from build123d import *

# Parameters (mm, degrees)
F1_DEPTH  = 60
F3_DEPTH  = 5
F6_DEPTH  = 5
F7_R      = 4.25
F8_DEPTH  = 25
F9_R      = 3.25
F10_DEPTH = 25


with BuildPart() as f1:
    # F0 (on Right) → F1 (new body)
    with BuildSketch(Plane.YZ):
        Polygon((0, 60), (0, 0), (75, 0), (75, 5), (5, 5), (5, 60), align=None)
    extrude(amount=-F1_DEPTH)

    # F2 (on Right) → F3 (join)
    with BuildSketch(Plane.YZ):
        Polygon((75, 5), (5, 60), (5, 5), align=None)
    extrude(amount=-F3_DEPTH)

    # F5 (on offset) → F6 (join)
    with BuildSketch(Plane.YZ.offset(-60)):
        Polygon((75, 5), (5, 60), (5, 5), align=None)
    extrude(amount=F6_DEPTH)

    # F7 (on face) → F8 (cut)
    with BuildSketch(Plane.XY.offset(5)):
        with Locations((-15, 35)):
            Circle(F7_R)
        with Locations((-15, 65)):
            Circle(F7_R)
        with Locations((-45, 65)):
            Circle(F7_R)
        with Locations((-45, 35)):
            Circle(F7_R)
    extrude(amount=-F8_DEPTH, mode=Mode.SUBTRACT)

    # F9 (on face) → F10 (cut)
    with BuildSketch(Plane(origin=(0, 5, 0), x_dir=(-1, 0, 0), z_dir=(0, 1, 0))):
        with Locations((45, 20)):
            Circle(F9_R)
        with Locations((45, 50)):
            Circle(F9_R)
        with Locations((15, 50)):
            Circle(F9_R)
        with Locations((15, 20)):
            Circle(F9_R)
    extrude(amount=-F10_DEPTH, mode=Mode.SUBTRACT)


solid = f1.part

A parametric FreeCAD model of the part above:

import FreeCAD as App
import Part
import Sketcher
from FreeCAD import Vector
Q = App.Units.Quantity

doc = App.newDocument("Part")
body = doc.addObject("PartDesign::Body", "Body")

# Sketch on YZ plane
sketch1 = body.newObject("Sketcher::SketchObject", "Sketch")
sketch1.AttachmentSupport = (doc.getObject("YZ_Plane"), [""])
sketch1.MapMode = "FlatFace"
sketch1.addGeometry(Part.LineSegment(Vector(0, 60, 0), Vector(0, 0, 0)), False)
sketch1.addGeometry(Part.LineSegment(Vector(0, 0, 0), Vector(75, 0, 0)), False)
sketch1.addGeometry(Part.LineSegment(Vector(75, 0, 0), Vector(75, 5, 0)), False)
sketch1.addGeometry(Part.LineSegment(Vector(75, 5, 0), Vector(5, 5, 0)), False)
sketch1.addGeometry(Part.LineSegment(Vector(5, 5, 0), Vector(5, 60, 0)), False)
sketch1.addGeometry(Part.LineSegment(Vector(5, 60, 0), Vector(0, 60, 0)), False)
sketch1.addConstraint(Sketcher.Constraint("Coincident", 0, 2, 1, 1))
sketch1.addConstraint(Sketcher.Constraint("Coincident", 1, 2, 2, 1))
sketch1.addConstraint(Sketcher.Constraint("Coincident", 2, 2, 3, 1))
sketch1.addConstraint(Sketcher.Constraint("Coincident", 3, 2, 4, 1))
sketch1.addConstraint(Sketcher.Constraint("Coincident", 4, 2, 5, 1))
sketch1.addConstraint(Sketcher.Constraint("Coincident", 5, 2, 0, 1))
sketch1.addConstraint(Sketcher.Constraint("Vertical", 0))
sketch1.addConstraint(Sketcher.Constraint("Horizontal", 1))
sketch1.addConstraint(Sketcher.Constraint("Vertical", 2))
sketch1.addConstraint(Sketcher.Constraint("Horizontal", 3))
sketch1.addConstraint(Sketcher.Constraint("Vertical", 4))
sketch1.addConstraint(Sketcher.Constraint("Horizontal", 5))
sketch1.addConstraint(Sketcher.Constraint("Coincident", 0, 2, -1, 1))
sketch1.addConstraint(Sketcher.Constraint("Equal", 5, 2))
sketch1.addConstraint(Sketcher.Constraint("DistanceX", 1, 1, 1, 2, Q("75 mm")))
sketch1.addConstraint(Sketcher.Constraint("DistanceX", 3, 2, 3, 1, Q("70 mm")))
sketch1.addConstraint(Sketcher.Constraint("DistanceY", 0, 2, 0, 1, Q("60 mm")))
pad1 = body.newObject("PartDesign::Pad", "Pad")
pad1.Profile = sketch1
pad1.Length = 60
pad1.Reversed = True

# Sketch on YZ plane
sketch2 = body.newObject("Sketcher::SketchObject", "Sketch001")
sketch2.AttachmentSupport = (doc.getObject("YZ_Plane"), [""])
sketch2.MapMode = "FlatFace"
sketch2.addGeometry(Part.LineSegment(Vector(75, 5, 0), Vector(5, 60, 0)), False)
sketch2.addGeometry(Part.LineSegment(Vector(5, 60, 0), Vector(5, 5, 0)), False)
sketch2.addGeometry(Part.LineSegment(Vector(5, 5, 0), Vector(75, 5, 0)), False)
sketch2.addConstraint(Sketcher.Constraint("Coincident", 0, 2, 1, 1))
sketch2.addConstraint(Sketcher.Constraint("Coincident", 1, 2, 2, 1))
sketch2.addConstraint(Sketcher.Constraint("Coincident", 2, 2, 0, 1))
sketch2.addConstraint(Sketcher.Constraint("Vertical", 1))
sketch2.addConstraint(Sketcher.Constraint("Horizontal", 2))
sketch2.addConstraint(Sketcher.Constraint("DistanceX", 2, 1, 2, 2, Q("70 mm")))
sketch2.addConstraint(Sketcher.Constraint("DistanceY", 1, 2, 1, 1, Q("55 mm")))
sketch2.addConstraint(Sketcher.Constraint("DistanceX", -1, 1, 0, 2, Q("5 mm")))
sketch2.addConstraint(Sketcher.Constraint("DistanceY", -1, 1, 0, 2, Q("60 mm")))
pad2 = body.newObject("PartDesign::Pad", "Pad001")
pad2.Profile = sketch2
pad2.Length = 5
pad2.Reversed = True

# Sketch on YZ plane
sketch3 = body.newObject("Sketcher::SketchObject", "Sketch002")
sketch3.AttachmentSupport = (doc.getObject("YZ_Plane"), [""])
sketch3.MapMode = "FlatFace"
sketch3.AttachmentOffset = App.Placement(Vector(0, 0, -60), App.Rotation())
sketch3.addGeometry(Part.LineSegment(Vector(75, 5, 0), Vector(5, 60, 0)), False)
sketch3.addGeometry(Part.LineSegment(Vector(5, 60, 0), Vector(5, 5, 0)), False)
sketch3.addGeometry(Part.LineSegment(Vector(5, 5, 0), Vector(75, 5, 0)), False)
sketch3.addConstraint(Sketcher.Constraint("Coincident", 0, 2, 1, 1))
sketch3.addConstraint(Sketcher.Constraint("Coincident", 1, 2, 2, 1))
sketch3.addConstraint(Sketcher.Constraint("Coincident", 2, 2, 0, 1))
sketch3.addConstraint(Sketcher.Constraint("Vertical", 1))
sketch3.addConstraint(Sketcher.Constraint("Horizontal", 2))
sketch3.addConstraint(Sketcher.Constraint("DistanceX", 2, 1, 2, 2, Q("70 mm")))
sketch3.addConstraint(Sketcher.Constraint("DistanceY", 1, 2, 1, 1, Q("55 mm")))
sketch3.addConstraint(Sketcher.Constraint("DistanceX", -1, 1, 0, 2, Q("5 mm")))
sketch3.addConstraint(Sketcher.Constraint("DistanceY", -1, 1, 0, 2, Q("60 mm")))
pad3 = body.newObject("PartDesign::Pad", "Pad002")
pad3.Profile = sketch3
pad3.Length = 5

# Sketch on XY plane
sketch4 = body.newObject("Sketcher::SketchObject", "Sketch003")
sketch4.AttachmentSupport = (doc.getObject("XY_Plane"), [""])
sketch4.MapMode = "FlatFace"
sketch4.AttachmentOffset = App.Placement(Vector(0, 0, 5), App.Rotation())
sketch4.addGeometry(Part.Circle(Vector(-15, 35, 0), Vector(0, 0, 1), 4.25), False)
sketch4.addGeometry(Part.Circle(Vector(-15, 65, 0), Vector(0, 0, 1), 4.25), False)
sketch4.addGeometry(Part.Circle(Vector(-45, 65, 0), Vector(0, 0, 1), 4.25), False)
sketch4.addGeometry(Part.Circle(Vector(-45, 35, 0), Vector(0, 0, 1), 4.25), False)
sketch4.addConstraint(Sketcher.Constraint("Equal", 0, 1))
sketch4.addConstraint(Sketcher.Constraint("Equal", 1, 2))
sketch4.addConstraint(Sketcher.Constraint("Equal", 2, 3))
sketch4.addConstraint(Sketcher.Constraint("Horizontal", 1, 3, 2, 3))
sketch4.addConstraint(Sketcher.Constraint("Horizontal", 0, 3, 3, 3))
sketch4.addConstraint(Sketcher.Constraint("Vertical", 0, 3, 1, 3))
sketch4.addConstraint(Sketcher.Constraint("Vertical", 2, 3, 3, 3))
sketch4.addConstraint(Sketcher.Constraint("Diameter", 0, Q("8.5 mm")))
sketch4.addConstraint(Sketcher.Constraint("DistanceX", 0, 3, -1, 1, Q("15 mm")))
sketch4.addConstraint(Sketcher.Constraint("DistanceY", -1, 1, 0, 3, Q("35 mm")))
sketch4.addConstraint(Sketcher.Constraint("DistanceY", -1, 1, 1, 3, Q("65 mm")))
sketch4.addConstraint(Sketcher.Constraint("DistanceX", 2, 3, -1, 1, Q("45 mm")))
pocket1 = body.newObject("PartDesign::Pocket", "Pocket")
pocket1.Profile = sketch4
pocket1.Length = 25

# Sketch on XZ plane
sketch5 = body.newObject("Sketcher::SketchObject", "Sketch004")
sketch5.AttachmentSupport = (doc.getObject("XZ_Plane"), [""])
sketch5.MapMode = "FlatFace"
sketch5.AttachmentOffset = App.Placement(Vector(0, 0, -5), App.Rotation())
sketch5.addGeometry(Part.Circle(Vector(-45, 20, 0), Vector(0, 0, 1), 3.25), False)
sketch5.addGeometry(Part.Circle(Vector(-45, 50, 0), Vector(0, 0, 1), 3.25), False)
sketch5.addGeometry(Part.Circle(Vector(-15, 50, 0), Vector(0, 0, 1), 3.25), False)
sketch5.addGeometry(Part.Circle(Vector(-15, 20, 0), Vector(0, 0, 1), 3.25), False)
sketch5.addConstraint(Sketcher.Constraint("Equal", 0, 1))
sketch5.addConstraint(Sketcher.Constraint("Equal", 1, 2))
sketch5.addConstraint(Sketcher.Constraint("Equal", 2, 3))
sketch5.addConstraint(Sketcher.Constraint("Horizontal", 1, 3, 2, 3))
sketch5.addConstraint(Sketcher.Constraint("Horizontal", 0, 3, 3, 3))
sketch5.addConstraint(Sketcher.Constraint("Vertical", 0, 3, 1, 3))
sketch5.addConstraint(Sketcher.Constraint("Vertical", 2, 3, 3, 3))
sketch5.addConstraint(Sketcher.Constraint("Diameter", 0, Q("6.5 mm")))
sketch5.addConstraint(Sketcher.Constraint("DistanceX", 0, 3, -1, 1, Q("45 mm")))
sketch5.addConstraint(Sketcher.Constraint("DistanceY", -1, 1, 0, 3, Q("20 mm")))
sketch5.addConstraint(Sketcher.Constraint("DistanceY", -1, 1, 1, 3, Q("50 mm")))
sketch5.addConstraint(Sketcher.Constraint("DistanceX", 2, 3, -1, 1, Q("15 mm")))
pocket2 = body.newObject("PartDesign::Pocket", "Pocket001")
pocket2.Profile = sketch5
pocket2.Length = 25
pocket2.Reversed = True

doc.recompute()
